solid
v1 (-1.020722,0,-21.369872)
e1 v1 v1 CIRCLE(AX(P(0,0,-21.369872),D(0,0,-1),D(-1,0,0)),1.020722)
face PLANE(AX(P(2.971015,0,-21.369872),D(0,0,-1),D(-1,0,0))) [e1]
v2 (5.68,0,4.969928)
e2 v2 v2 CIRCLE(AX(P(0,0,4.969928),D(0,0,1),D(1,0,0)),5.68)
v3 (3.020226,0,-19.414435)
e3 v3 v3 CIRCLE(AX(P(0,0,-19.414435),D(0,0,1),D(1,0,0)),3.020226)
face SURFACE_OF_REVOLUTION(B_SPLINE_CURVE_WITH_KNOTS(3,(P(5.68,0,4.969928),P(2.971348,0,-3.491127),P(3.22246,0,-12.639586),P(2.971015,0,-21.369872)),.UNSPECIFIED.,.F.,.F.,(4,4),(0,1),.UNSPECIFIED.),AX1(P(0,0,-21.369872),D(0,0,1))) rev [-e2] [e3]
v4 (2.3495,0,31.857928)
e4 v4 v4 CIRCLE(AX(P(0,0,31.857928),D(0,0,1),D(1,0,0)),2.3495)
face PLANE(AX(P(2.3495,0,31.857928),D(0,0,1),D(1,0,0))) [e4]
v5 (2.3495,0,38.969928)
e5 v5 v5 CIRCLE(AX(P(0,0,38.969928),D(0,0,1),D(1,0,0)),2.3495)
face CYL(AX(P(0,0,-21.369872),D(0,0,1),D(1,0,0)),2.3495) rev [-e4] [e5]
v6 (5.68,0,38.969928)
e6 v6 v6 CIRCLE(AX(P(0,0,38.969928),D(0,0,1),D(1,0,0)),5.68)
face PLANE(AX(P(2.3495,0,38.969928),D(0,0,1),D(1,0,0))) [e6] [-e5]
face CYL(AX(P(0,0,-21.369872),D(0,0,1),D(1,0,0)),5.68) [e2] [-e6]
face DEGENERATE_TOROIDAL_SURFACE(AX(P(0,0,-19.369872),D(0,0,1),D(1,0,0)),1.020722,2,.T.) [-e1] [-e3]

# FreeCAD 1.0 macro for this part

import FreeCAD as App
import Part
import Sketcher
from FreeCAD import Vector


def edges_at(feature, points):
    """Names of the edges that pass closest to the given points."""
    edges = feature.Shape.Edges
    near = lambda p: min(range(len(edges)), key=lambda i: edges[i].distToShape(Part.Vertex(*p))[0])
    return sorted({f"Edge{near(p) + 1}" for p in points})

doc = App.newDocument("Part")
body = doc.addObject("PartDesign::Body", "Body")

# Sketch on XZ plane
sketch1 = body.newObject("Sketcher::SketchObject", "Sketch")
sketch1.AttachmentSupport = (doc.getObject("XZ_Plane"), [""])
sketch1.MapMode = "FlatFace"
sketch1.addGeometry([
    Part.LineSegment(Vector(2.971015, -21.369872, 0), Vector(0, -21.369872, 0)),  # 0
    Part.LineSegment(Vector(0, -21.369872, 0), Vector(0, 31.857928, 0)),  # 1
    Part.LineSegment(Vector(0, 31.857928, 0), Vector(2.3495, 31.857928, 0)),  # 2
    Part.LineSegment(Vector(2.3495, 31.857928, 0), Vector(2.3495, 38.969928, 0)),  # 3
    Part.LineSegment(Vector(2.3495, 38.969928, 0), Vector(5.68, 38.969928, 0)),  # 4
    Part.LineSegment(Vector(5.68, 38.969928, 0), Vector(5.68, 4.969928, 0)),  # 5
    Part.BSplineCurve([Vector(2.971015, -21.369872, 0), Vector(3.22246, -12.639586, 0), Vector(2.971348, -3.491127, 0), Vector(5.68, 4.969928, 0)], [4, 4], [0, 1], False, 3, [1, 1, 1, 1], False),  # 6
], False)
sketch1.addConstraint([
    Sketcher.Constraint("Block", 6),
    Sketcher.Constraint("Coincident", 0, 2, 1, 1),
    Sketcher.Constraint("Coincident", 1, 2, 2, 1),
    Sketcher.Constraint("Coincident", 2, 2, 3, 1),
    Sketcher.Constraint("Coincident", 3, 2, 4, 1),
    Sketcher.Constraint("Coincident", 4, 2, 5, 1),
    Sketcher.Constraint("Coincident", 5, 2, 6, 2),
    Sketcher.Constraint("Coincident", 6, 1, 0, 1),
    Sketcher.Constraint("Horizontal", 0),
    Sketcher.Constraint("Vertical", 1),
    Sketcher.Constraint("Horizontal", 2),
    Sketcher.Constraint("Vertical", 3),
    Sketcher.Constraint("Horizontal", 4),
    Sketcher.Constraint("Vertical", 5),
    Sketcher.Constraint("PointOnObject", 0, 2, -2),
    Sketcher.Constraint("DistanceY", 5, 2, 5, 1, 34.0),
    Sketcher.Constraint("DistanceY", 3, 1, 3, 2, 7.112),
    Sketcher.Constraint("DistanceX", 2, 1, 2, 2, 2.3495),
])
revolution = body.newObject("PartDesign::Revolution", "Revolution")
revolution.Profile = sketch1
revolution.ReferenceAxis = (sketch1, ["V_Axis"])
revolution.Angle = 360
doc.recompute()

fillet = body.newObject("PartDesign::Fillet", "Fillet")
fillet.Base = (revolution, edges_at(revolution, [(-2.971, 0, -21.37)]))
fillet.Radius = 2

doc.recompute()
